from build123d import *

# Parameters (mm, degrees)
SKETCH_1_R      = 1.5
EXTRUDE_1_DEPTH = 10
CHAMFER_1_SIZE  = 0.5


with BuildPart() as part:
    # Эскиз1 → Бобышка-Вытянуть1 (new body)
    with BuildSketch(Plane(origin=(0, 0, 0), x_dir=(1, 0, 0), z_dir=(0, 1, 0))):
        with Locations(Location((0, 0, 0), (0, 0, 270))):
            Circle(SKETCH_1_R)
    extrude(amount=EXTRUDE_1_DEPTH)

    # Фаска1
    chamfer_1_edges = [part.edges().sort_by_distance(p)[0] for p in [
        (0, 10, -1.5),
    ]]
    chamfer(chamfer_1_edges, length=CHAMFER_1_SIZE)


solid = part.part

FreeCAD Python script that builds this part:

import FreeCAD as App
import Part
import Sketcher

V = App.Vector
Q = App.Units.Quantity


def edges_at(feature, points):
    """Names of the edges that pass closest to the given points."""
    edges = feature.Shape.Edges
    near = lambda p: min(range(len(edges)), key=lambda i: edges[i].distToShape(Part.Vertex(*p))[0])
    return sorted({f"Edge{near(p) + 1}" for p in points})

doc = App.newDocument("Part")
body = doc.addObject("PartDesign::Body", "Body")

# Sketch on XZ plane
sketch1 = doc.addObject("Sketcher::SketchObject", "Sketch")
body.addObject(sketch1)
sketch1.AttachmentSupport = (doc.XZ_Plane, [""])
sketch1.MapMode = "FlatFace"
sketch1.addGeometry(Part.Circle(V(0, 0, 0), V(0, 0, 1), 1.5), False)
sketch1.addConstraint([
    Sketcher.Constraint("Coincident", 0, 3, -1, 1),
    Sketcher.Constraint("Diameter", 0, Q("3 mm")),
])
pad1 = doc.addObject("PartDesign::Pad", "Pad")
body.addObject(pad1)
pad1.Profile = sketch1
pad1.Length = 10
pad1.Reversed = True
doc.recompute()

chamfer = doc.addObject("PartDesign::Chamfer", "Chamfer")
body.addObject(chamfer)
chamfer.Base = (pad1, edges_at(pad1, [(0, 10, -1.5)]))
chamfer.Size = 0.5

doc.recompute()
